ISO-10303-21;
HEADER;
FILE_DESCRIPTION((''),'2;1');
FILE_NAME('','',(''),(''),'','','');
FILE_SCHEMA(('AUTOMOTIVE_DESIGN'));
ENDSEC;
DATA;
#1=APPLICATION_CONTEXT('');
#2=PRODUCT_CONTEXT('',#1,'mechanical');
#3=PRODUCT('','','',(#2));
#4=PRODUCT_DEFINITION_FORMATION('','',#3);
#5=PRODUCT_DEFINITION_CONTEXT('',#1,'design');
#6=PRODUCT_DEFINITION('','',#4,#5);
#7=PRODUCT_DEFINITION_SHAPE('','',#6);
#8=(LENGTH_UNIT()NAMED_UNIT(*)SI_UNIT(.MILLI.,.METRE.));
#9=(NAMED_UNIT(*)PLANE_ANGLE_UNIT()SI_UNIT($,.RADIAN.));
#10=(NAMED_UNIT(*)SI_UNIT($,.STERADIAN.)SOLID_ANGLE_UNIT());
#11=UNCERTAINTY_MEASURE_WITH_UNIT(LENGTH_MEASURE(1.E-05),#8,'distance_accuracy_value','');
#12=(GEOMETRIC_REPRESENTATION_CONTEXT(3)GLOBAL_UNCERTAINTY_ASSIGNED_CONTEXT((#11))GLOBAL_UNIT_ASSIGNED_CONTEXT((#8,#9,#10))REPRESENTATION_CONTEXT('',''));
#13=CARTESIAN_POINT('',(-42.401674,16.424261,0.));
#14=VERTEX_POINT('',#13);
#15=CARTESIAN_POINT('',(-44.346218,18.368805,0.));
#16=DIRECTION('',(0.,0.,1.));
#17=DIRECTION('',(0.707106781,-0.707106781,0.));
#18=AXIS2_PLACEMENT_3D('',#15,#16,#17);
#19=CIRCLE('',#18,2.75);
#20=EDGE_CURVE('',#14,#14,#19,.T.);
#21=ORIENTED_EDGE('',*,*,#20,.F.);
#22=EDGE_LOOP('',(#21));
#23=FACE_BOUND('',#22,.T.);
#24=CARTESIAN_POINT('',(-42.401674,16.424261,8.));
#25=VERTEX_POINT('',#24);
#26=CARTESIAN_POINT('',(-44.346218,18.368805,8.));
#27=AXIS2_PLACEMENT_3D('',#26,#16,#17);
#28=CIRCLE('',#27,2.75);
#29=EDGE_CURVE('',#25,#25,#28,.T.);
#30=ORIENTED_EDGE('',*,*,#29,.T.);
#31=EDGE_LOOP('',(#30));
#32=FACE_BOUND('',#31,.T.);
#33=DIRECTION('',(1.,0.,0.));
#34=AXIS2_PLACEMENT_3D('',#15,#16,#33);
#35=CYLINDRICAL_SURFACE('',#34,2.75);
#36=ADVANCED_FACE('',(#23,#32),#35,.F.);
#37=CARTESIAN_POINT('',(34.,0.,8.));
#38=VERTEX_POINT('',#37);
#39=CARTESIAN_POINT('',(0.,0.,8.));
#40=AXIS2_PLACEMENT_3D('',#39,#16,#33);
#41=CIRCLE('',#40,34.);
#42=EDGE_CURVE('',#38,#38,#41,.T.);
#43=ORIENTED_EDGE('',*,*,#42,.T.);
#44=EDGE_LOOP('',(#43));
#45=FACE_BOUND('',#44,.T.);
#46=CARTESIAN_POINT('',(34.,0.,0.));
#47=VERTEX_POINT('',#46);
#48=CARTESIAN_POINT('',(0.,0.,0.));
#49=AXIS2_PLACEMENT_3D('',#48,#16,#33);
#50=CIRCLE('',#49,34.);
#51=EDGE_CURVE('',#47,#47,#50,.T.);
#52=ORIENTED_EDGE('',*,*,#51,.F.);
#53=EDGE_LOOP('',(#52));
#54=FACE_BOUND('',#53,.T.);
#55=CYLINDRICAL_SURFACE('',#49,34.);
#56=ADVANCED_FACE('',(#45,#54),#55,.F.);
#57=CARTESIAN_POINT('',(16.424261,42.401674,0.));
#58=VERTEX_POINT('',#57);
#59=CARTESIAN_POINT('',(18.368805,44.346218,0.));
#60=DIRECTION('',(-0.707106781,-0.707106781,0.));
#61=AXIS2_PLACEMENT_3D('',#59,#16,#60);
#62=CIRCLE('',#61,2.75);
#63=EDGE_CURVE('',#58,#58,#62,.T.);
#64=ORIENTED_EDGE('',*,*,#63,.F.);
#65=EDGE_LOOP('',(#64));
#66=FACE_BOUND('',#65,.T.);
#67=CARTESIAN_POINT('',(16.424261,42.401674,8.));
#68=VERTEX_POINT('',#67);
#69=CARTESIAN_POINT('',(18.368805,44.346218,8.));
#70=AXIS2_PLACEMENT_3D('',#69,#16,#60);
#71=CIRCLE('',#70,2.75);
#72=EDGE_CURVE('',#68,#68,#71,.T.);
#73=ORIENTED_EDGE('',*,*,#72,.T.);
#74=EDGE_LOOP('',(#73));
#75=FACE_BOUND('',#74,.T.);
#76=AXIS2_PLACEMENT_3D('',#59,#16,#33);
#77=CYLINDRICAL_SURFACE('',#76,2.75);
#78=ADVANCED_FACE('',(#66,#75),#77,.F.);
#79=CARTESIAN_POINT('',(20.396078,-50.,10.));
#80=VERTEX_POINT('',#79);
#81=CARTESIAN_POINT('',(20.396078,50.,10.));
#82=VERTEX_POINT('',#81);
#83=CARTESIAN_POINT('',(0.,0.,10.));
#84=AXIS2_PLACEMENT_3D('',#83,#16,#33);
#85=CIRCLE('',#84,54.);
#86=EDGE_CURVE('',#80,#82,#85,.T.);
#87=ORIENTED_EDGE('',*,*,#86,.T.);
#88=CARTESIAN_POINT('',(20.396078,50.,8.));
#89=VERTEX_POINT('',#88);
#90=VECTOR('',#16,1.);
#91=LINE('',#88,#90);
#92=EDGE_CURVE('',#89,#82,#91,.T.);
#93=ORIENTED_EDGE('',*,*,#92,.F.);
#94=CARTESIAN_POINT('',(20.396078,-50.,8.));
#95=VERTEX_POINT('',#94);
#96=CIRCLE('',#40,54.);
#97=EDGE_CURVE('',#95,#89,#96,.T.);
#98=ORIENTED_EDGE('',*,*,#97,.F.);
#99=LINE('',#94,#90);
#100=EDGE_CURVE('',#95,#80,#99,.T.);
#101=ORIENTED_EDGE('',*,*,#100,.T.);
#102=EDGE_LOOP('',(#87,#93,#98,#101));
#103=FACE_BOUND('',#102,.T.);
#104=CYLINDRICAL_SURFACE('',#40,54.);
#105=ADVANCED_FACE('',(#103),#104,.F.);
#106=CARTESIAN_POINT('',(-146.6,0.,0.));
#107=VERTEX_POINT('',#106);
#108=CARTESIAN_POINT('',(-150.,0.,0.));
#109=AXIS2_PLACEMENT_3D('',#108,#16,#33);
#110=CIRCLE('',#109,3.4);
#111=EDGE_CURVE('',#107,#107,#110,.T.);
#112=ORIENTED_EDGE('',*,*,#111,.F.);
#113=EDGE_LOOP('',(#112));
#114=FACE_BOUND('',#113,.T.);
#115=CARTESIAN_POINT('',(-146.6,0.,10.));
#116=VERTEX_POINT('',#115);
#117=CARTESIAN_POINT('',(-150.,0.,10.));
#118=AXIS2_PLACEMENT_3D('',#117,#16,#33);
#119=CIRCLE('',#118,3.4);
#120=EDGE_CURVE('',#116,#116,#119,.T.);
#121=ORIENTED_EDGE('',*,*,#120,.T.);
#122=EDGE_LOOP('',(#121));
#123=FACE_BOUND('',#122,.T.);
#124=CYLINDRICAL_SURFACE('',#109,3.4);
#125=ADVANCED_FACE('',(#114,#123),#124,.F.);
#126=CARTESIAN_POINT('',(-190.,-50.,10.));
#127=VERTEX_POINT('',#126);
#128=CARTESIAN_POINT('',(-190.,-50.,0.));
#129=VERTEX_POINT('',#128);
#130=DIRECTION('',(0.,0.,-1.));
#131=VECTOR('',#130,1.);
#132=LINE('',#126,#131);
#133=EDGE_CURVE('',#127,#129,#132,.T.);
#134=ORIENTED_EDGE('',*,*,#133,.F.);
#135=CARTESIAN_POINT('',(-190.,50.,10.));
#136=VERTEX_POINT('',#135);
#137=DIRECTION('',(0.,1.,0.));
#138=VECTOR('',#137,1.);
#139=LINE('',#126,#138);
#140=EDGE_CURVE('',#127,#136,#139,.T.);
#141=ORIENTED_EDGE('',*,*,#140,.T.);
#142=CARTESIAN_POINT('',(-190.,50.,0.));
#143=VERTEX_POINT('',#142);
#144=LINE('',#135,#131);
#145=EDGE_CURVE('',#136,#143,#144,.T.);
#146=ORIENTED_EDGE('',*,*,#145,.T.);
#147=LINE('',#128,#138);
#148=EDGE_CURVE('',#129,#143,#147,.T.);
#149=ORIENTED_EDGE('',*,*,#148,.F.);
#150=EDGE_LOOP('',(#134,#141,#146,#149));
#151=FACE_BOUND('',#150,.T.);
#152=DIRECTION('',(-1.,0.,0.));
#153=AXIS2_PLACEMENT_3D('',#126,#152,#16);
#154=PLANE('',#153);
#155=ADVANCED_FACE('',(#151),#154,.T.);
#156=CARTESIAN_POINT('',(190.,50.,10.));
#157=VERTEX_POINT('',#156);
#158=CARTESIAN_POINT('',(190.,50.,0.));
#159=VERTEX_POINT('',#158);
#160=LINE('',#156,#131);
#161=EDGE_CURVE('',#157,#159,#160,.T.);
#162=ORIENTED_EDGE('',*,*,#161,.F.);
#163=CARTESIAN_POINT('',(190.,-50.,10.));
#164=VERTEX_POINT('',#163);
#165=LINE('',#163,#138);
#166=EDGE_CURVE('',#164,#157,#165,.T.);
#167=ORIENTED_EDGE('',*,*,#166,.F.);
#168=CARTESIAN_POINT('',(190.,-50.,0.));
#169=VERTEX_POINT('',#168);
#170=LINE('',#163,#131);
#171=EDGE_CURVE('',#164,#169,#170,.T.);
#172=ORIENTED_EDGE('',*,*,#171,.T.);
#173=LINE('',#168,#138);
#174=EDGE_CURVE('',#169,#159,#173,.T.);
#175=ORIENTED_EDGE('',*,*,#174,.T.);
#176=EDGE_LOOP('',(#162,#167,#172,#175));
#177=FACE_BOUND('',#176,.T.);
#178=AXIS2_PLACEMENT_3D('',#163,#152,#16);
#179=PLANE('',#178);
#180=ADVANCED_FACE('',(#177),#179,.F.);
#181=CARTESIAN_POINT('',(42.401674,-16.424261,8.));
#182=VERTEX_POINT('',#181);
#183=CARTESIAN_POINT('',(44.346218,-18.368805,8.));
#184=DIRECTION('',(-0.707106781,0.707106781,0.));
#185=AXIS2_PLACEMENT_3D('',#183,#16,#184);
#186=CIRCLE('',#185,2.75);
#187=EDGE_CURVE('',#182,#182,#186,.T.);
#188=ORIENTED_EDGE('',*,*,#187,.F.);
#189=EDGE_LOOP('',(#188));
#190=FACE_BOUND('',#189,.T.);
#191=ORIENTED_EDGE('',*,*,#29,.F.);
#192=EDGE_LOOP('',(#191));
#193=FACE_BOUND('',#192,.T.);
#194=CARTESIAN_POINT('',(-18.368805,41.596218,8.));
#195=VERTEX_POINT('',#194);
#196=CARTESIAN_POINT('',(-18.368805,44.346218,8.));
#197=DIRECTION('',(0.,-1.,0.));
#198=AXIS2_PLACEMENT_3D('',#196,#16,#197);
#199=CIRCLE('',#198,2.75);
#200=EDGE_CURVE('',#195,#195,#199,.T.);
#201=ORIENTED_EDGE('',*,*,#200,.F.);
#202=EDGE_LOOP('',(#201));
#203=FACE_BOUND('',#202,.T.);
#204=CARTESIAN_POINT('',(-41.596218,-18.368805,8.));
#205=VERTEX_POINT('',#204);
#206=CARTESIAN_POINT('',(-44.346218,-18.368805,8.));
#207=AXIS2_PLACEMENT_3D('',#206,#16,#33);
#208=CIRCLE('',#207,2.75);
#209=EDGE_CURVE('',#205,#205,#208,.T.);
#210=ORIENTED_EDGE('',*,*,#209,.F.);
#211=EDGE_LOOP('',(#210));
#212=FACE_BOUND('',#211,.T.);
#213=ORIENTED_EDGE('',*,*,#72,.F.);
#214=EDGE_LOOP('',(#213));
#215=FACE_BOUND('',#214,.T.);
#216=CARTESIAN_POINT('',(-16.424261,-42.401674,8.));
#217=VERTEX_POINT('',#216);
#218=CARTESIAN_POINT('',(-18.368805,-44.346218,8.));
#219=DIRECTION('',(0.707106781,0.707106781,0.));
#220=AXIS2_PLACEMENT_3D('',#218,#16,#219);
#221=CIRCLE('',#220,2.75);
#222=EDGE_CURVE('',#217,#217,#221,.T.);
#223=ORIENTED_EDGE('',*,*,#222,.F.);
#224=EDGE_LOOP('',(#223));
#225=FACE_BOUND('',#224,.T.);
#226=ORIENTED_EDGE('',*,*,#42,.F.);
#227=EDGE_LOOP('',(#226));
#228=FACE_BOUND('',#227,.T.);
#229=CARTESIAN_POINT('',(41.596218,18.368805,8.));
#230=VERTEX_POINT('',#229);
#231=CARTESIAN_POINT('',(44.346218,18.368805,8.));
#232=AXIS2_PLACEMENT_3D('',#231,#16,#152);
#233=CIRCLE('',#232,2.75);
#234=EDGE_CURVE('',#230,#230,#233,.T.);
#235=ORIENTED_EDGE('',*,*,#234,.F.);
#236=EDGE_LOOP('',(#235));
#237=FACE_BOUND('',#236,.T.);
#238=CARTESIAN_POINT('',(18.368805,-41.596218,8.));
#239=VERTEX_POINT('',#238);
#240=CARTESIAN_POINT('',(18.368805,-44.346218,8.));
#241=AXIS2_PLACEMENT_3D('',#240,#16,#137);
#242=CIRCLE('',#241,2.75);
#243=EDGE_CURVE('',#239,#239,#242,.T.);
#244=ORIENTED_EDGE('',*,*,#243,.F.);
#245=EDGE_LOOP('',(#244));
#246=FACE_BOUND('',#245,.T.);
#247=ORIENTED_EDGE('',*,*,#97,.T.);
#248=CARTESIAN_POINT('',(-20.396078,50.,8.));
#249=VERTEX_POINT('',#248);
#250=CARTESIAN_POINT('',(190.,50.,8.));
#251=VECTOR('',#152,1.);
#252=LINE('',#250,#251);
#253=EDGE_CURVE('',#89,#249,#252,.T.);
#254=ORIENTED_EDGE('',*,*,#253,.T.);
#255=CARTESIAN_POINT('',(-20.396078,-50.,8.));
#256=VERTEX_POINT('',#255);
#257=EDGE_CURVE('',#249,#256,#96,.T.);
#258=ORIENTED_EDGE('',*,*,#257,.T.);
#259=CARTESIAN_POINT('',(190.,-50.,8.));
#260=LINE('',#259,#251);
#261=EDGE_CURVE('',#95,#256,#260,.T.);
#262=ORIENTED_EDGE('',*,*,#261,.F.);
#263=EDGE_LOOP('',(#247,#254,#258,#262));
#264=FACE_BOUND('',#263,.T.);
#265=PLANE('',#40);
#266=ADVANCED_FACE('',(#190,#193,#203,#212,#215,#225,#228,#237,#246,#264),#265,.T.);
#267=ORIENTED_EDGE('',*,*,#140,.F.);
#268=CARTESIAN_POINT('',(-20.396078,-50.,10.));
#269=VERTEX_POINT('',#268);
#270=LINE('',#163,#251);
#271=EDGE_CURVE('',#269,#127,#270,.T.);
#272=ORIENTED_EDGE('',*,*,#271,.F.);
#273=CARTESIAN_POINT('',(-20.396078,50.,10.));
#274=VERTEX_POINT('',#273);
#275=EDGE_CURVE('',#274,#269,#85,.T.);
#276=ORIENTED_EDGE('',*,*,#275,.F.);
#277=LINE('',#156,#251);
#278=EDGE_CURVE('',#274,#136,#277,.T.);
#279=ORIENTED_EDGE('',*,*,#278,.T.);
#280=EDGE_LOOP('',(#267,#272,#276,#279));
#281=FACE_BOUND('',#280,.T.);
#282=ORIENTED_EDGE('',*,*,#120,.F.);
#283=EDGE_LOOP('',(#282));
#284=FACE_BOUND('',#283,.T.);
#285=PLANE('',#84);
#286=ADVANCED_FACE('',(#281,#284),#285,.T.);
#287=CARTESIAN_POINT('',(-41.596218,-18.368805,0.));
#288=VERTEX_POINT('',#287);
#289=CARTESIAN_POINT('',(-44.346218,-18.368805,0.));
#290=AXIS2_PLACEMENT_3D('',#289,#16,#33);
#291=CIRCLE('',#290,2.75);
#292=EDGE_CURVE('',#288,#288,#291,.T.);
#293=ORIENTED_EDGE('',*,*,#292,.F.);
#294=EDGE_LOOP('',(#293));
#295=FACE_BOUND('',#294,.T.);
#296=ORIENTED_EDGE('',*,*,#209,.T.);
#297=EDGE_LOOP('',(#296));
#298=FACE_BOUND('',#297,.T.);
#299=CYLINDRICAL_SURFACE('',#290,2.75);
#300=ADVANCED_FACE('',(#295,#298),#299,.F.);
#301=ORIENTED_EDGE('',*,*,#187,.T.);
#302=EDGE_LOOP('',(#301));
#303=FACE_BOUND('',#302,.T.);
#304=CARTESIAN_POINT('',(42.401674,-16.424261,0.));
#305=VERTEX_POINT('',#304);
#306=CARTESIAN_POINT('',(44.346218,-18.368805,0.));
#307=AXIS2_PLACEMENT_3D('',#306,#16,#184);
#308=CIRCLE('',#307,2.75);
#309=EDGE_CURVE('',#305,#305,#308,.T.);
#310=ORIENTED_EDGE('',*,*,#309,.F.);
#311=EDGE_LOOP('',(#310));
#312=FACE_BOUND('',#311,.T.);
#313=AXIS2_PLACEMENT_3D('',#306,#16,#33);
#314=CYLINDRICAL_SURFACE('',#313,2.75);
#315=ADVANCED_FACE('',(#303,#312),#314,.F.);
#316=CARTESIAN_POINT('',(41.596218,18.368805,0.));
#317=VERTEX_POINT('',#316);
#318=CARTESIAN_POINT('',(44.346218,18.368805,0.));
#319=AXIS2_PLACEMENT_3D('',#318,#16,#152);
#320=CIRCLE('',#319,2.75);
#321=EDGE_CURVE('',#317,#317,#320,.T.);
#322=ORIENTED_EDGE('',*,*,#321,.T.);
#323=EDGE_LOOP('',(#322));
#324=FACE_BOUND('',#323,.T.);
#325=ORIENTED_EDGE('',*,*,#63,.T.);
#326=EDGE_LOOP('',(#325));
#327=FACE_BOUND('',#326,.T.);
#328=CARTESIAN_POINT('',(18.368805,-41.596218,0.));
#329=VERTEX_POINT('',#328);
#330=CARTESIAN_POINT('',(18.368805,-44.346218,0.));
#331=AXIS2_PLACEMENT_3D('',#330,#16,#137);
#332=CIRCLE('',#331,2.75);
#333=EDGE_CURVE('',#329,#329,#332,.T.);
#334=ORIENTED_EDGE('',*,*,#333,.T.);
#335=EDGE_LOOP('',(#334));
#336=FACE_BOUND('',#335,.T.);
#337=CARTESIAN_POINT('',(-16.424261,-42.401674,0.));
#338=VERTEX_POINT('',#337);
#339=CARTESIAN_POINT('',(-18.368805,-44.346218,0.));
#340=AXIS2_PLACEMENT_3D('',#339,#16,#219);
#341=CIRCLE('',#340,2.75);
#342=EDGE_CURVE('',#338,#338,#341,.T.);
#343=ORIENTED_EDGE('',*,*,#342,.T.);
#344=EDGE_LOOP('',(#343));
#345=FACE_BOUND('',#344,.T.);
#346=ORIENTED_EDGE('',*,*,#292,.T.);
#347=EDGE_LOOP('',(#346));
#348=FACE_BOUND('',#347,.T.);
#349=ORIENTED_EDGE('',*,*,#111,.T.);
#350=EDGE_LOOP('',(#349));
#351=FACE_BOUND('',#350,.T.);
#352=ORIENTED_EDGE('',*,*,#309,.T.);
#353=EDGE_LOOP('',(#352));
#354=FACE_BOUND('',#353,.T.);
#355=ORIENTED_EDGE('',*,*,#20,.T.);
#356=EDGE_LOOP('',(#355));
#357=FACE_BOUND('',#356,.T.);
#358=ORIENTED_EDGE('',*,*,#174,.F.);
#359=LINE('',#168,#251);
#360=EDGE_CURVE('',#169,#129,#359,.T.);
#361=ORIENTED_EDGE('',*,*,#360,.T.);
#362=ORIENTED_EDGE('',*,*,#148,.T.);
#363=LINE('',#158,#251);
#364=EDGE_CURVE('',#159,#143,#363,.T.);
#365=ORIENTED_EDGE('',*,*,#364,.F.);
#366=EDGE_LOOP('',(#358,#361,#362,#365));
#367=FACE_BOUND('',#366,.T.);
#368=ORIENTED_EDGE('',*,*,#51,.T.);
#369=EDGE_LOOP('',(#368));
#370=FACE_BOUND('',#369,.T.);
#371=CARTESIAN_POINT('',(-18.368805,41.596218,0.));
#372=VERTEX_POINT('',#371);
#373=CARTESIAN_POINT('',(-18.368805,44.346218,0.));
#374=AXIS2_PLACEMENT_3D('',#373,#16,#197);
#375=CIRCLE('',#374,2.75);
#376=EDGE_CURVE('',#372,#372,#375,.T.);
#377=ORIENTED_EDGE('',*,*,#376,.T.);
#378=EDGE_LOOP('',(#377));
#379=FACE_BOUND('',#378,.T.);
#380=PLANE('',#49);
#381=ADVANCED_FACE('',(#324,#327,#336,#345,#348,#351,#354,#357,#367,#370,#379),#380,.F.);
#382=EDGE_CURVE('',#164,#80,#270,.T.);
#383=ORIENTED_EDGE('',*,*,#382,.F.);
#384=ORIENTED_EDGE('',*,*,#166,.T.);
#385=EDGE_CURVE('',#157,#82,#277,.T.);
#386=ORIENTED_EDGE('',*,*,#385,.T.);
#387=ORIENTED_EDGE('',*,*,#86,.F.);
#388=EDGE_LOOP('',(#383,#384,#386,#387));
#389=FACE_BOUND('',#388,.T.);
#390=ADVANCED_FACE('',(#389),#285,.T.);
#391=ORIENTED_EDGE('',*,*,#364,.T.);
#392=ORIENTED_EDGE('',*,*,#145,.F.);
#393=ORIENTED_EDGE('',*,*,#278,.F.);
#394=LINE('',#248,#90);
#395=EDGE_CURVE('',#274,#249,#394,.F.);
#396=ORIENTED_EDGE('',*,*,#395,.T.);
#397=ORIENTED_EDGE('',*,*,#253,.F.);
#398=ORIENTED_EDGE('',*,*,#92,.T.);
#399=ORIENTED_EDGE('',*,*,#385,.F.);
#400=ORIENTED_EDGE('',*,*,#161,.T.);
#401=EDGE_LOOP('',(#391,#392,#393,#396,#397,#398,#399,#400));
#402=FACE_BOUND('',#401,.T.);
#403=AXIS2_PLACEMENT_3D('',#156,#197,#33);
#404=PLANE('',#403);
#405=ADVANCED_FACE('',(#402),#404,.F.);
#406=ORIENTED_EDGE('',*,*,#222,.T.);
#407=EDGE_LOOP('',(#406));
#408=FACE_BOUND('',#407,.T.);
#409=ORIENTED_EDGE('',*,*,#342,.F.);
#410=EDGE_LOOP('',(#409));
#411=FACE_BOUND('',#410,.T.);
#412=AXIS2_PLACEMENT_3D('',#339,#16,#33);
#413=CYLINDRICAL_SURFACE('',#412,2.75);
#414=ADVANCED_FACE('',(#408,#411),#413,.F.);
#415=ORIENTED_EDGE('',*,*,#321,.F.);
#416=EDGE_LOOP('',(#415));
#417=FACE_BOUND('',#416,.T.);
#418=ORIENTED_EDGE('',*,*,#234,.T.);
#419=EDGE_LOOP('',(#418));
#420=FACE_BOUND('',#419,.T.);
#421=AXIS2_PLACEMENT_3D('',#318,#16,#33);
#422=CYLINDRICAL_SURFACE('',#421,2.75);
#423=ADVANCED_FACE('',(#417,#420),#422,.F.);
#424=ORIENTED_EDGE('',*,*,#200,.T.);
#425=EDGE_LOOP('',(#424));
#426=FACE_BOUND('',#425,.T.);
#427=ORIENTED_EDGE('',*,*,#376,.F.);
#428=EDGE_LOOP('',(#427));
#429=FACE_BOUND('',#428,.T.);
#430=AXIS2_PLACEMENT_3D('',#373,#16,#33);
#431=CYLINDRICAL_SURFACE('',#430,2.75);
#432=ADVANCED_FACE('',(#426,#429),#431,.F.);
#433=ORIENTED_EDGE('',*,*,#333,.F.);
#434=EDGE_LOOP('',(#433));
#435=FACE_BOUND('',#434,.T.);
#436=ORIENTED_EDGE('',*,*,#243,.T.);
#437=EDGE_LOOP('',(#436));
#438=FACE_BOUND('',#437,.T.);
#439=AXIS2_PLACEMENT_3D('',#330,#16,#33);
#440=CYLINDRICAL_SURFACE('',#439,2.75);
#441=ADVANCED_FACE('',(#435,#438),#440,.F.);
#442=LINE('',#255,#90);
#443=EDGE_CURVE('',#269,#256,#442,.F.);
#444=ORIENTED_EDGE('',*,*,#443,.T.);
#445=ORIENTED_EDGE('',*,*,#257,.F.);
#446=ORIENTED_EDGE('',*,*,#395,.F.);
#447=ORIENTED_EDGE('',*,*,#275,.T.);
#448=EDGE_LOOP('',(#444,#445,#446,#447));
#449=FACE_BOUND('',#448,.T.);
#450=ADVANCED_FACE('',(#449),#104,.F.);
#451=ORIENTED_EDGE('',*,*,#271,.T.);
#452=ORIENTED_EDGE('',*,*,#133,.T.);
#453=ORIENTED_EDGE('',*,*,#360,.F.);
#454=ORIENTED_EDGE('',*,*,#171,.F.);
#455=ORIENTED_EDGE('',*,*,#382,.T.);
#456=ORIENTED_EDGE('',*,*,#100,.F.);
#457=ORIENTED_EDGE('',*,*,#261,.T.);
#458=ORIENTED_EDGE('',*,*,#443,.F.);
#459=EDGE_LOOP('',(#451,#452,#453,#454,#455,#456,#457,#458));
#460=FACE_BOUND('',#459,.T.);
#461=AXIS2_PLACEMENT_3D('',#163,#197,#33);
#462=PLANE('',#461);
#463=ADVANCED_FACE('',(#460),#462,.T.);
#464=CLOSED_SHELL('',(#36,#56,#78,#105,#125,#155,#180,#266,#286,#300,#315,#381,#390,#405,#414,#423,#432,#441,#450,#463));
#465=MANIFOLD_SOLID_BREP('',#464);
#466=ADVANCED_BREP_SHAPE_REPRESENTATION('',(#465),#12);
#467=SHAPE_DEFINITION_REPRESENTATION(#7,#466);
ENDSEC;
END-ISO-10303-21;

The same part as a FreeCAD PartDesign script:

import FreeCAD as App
import Part
import Sketcher

V = App.Vector

doc = App.newDocument("Part")
body = doc.addObject("PartDesign::Body", "Body")

# Sketch on XY plane
sketch1 = doc.addObject("Sketcher::SketchObject", "Sketch")
body.addObject(sketch1)
sketch1.AttachmentSupport = (doc.XY_Plane, [""])
sketch1.MapMode = "FlatFace"
sketch1.addGeometry([
    Part.LineSegment(V(-190, 50, 0), V(-190, -50, 0)),
    Part.LineSegment(V(-190, -50, 0), V(190, -50, 0)),
    Part.LineSegment(V(190, -50, 0), V(190, 50, 0)),
    Part.LineSegment(V(190, 50, 0), V(-190, 50, 0)),
], False)
sketch1.addConstraint([
    Sketcher.Constraint("Coincident", 0, 2, 1, 1),
    Sketcher.Constraint("Coincident", 1, 2, 2, 1),
    Sketcher.Constraint("Coincident", 2, 2, 3, 1),
    Sketcher.Constraint("Coincident", 3, 2, 0, 1),
    Sketcher.Constraint("Vertical", 0),
    Sketcher.Constraint("Horizontal", 1),
    Sketcher.Constraint("Vertical", 2),
    Sketcher.Constraint("Horizontal", 3),
    Sketcher.Constraint("Symmetric", 0, 2, 2, 2, -1, 1),
    Sketcher.Constraint("DistanceX", 1, 1, 1, 2, 380.0),
    Sketcher.Constraint("DistanceY", 0, 2, 0, 1, 100.0),
])
pad1 = doc.addObject("PartDesign::Pad", "Pad")
body.addObject(pad1)
pad1.Profile = sketch1
pad1.Length = 10

# Sketch on XY plane
sketch2 = doc.addObject("Sketcher::SketchObject", "Sketch001")
body.addObject(sketch2)
sketch2.AttachmentSupport = (doc.XY_Plane, [""])
sketch2.MapMode = "FlatFace"
sketch2.AttachmentOffset = App.Placement(V(0, 0, 10), App.Rotation())
sketch2.addGeometry(Part.Circle(V(0, 0, 0), V(0, 0, 1), 54), False)
sketch2.addConstraint([
    Sketcher.Constraint("Coincident", 0, 3, -1, 1),
    Sketcher.Constraint("Diameter", 0, 108.0),
])
pocket1 = doc.addObject("PartDesign::Pocket", "Pocket")
body.addObject(pocket1)
pocket1.Profile = sketch2
pocket1.Length = 2

# Sketch on XY plane
sketch3 = doc.addObject("Sketcher::SketchObject", "Sketch002")
body.addObject(sketch3)
sketch3.AttachmentSupport = (doc.XY_Plane, [""])
sketch3.MapMode = "FlatFace"
sketch3.AttachmentOffset = App.Placement(V(0, 0, 8), App.Rotation())
sketch3.addGeometry(Part.Circle(V(-44.3, -18.4, 0), V(0, 0, 1), 2.8), False)
sketch3.addConstraint([
    Sketcher.Constraint("Diameter", 0, 5.5),
    Sketcher.Constraint("DistanceX", 0, 3, -1, 1, 44.346218),
    Sketcher.Constraint("DistanceY", 0, 3, -1, 1, 18.368805),
])
pocket2 = doc.addObject("PartDesign::Pocket", "Pocket001")
body.addObject(pocket2)
pocket2.Profile = sketch3
pocket2.Type = "ThroughAll"
doc.recompute()

polarpattern = doc.addObject("PartDesign::PolarPattern", "PolarPattern")
body.addObject(polarpattern)
polarpattern.Originals = [pocket2]
polarpattern.Axis = (doc.Z_Axis, [""])
polarpattern.Angle = 360
polarpattern.Occurrences = 8
body.Tip = polarpattern

# Sketch on XY plane
sketch4 = doc.addObject("Sketcher::SketchObject", "Sketch003")
body.addObject(sketch4)
sketch4.AttachmentSupport = (doc.XY_Plane, [""])
sketch4.MapMode = "FlatFace"
sketch4.AttachmentOffset = App.Placement(V(0, 0, 8), App.Rotation())
sketch4.addGeometry(Part.Circle(V(0, 0, 0), V(0, 0, 1), 34), False)
sketch4.addConstraint([
    Sketcher.Constraint("Coincident", 0, 3, -1, 1),
    Sketcher.Constraint("Diameter", 0, 68.0),
])
pocket3 = doc.addObject("PartDesign::Pocket", "Pocket002")
body.addObject(pocket3)
pocket3.Profile = sketch4
pocket3.Type = "ThroughAll"

# Sketch on XY plane
sketch5 = doc.addObject("Sketcher::SketchObject", "Sketch004")
body.addObject(sketch5)
sketch5.AttachmentSupport = (doc.XY_Plane, [""])
sketch5.MapMode = "FlatFace"
sketch5.AttachmentOffset = App.Placement(V(0, 0, 10), App.Rotation())
sketch5.addGeometry(Part.Circle(V(-150, 0, 0), V(0, 0, 1), 3.4), False)
sketch5.addConstraint([
    Sketcher.Constraint("PointOnObject", 0, 3, -1),
    Sketcher.Constraint("Diameter", 0, 6.8),
    Sketcher.Constraint("DistanceX", 0, 3, -1, 1, 150.0),
])
pocket4 = doc.addObject("PartDesign::Pocket", "Pocket003")
body.addObject(pocket4)
pocket4.Profile = sketch5
pocket4.Type = "ThroughAll"

doc.recompute()
